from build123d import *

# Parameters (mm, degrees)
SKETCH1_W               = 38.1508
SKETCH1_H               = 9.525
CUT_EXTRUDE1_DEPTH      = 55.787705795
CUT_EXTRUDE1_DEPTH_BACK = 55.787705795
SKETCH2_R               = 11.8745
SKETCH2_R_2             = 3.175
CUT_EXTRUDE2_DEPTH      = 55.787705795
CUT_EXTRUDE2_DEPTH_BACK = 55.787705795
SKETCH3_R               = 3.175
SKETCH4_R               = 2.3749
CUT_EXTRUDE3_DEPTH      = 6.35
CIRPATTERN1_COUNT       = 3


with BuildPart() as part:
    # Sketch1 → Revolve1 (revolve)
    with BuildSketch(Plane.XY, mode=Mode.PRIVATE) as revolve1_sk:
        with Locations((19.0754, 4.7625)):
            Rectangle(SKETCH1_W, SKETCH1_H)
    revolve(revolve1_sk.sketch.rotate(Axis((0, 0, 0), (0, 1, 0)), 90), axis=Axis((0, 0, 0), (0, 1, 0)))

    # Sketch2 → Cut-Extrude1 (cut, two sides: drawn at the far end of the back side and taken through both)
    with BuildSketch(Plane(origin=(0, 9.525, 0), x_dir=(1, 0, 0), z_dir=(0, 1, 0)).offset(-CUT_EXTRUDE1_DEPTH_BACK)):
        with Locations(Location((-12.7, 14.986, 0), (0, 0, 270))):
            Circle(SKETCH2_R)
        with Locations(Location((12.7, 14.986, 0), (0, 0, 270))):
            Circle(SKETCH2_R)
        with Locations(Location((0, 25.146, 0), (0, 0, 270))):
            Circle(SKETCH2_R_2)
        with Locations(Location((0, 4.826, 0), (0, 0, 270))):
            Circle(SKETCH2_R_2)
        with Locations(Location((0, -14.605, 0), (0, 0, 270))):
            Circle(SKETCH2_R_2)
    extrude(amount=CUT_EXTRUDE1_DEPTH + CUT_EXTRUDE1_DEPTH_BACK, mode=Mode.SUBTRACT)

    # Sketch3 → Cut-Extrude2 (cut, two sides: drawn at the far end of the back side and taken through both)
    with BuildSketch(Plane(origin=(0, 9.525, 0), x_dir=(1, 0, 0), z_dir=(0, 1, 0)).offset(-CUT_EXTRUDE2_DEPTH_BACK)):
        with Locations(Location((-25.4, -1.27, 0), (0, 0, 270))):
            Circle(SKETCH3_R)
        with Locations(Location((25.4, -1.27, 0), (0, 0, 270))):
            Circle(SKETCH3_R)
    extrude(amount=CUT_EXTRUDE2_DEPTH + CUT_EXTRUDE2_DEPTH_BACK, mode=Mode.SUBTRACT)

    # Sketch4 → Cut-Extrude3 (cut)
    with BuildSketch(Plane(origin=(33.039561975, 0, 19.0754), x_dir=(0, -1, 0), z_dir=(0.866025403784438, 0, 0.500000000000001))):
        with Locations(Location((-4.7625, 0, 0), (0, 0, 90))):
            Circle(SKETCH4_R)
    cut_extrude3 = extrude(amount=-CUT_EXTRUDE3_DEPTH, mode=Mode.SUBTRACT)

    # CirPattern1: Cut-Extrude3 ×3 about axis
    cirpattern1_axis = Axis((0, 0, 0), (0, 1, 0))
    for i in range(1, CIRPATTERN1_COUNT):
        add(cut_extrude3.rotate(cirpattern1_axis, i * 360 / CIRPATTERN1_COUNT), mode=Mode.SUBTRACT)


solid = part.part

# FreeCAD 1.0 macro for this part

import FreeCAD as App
import Part
import Sketcher
Q = App.Units.Quantity

doc = App.newDocument("Part")
params = doc.addObject("Spreadsheet::Sheet", "Params")
for row, (alias, value) in enumerate([
    ("sketch1_width", "1.502 in"),
    ("sketch1_height", "0.375 in"),
    ("revolution_angle", "360 deg"),
    ("sketch2_diameter", "0.25 in"),
    ("sketch2_diameter2", "0.935 in"),
    ("sketch3_diameter", "0.25 in"),
    ("sketch4_diameter", "0.187 in"),
    ("pocket3_length", "0.25 in"),
], start=1):
    params.set(f"A{row}", alias)
    params.set(f"B{row}", "=" + value)
    params.setAlias(f"B{row}", alias)

body = doc.addObject("PartDesign::Body", "Body")

# Sketch on XY plane
sketch1 = doc.addObject("Sketcher::SketchObject", "Sketch")
body.addObject(sketch1)
sketch1.AttachmentSupport = (doc.XY_Plane, [""])
sketch1.MapMode = "FlatFace"
sketch1.addGeometry([
    Part.LineSegment(App.Vector(0, 9.525, 0), App.Vector(0, 0, 0)),
    Part.LineSegment(App.Vector(0, 0, 0), App.Vector(38.1508, 0, 0)),
    Part.LineSegment(App.Vector(38.1508, 0, 0), App.Vector(38.1508, 9.525, 0)),
    Part.LineSegment(App.Vector(38.1508, 9.525, 0), App.Vector(0, 9.525, 0)),
], False)
sketch1.addConstraint([
    Sketcher.Constraint("Coincident", 0, 2, 1, 1),
    Sketcher.Constraint("Coincident", 1, 2, 2, 1),
    Sketcher.Constraint("Coincident", 2, 2, 3, 1),
    Sketcher.Constraint("Coincident", 3, 2, 0, 1),
    Sketcher.Constraint("Vertical", 0),
    Sketcher.Constraint("Horizontal", 1),
    Sketcher.Constraint("Vertical", 2),
    Sketcher.Constraint("Horizontal", 3),
    Sketcher.Constraint("Coincident", 0, 2, -1, 1),
    Sketcher.Constraint("DistanceX", 1, 1, 1, 2, Q("1.502 in")),
    Sketcher.Constraint("DistanceY", 0, 2, 0, 1, Q("0.375 in")),
])
sketch1.setExpression("Constraints[9]", "Params.sketch1_width")
sketch1.setExpression("Constraints[10]", "Params.sketch1_height")
revolution = doc.addObject("PartDesign::Revolution", "Revolution")
body.addObject(revolution)
revolution.Profile = sketch1
revolution.ReferenceAxis = (sketch1, ["V_Axis"])
revolution.setExpression("Angle", "Params.revolution_angle")

# Sketch on XZ plane
sketch2 = doc.addObject("Sketcher::SketchObject", "Sketch001")
body.addObject(sketch2)
sketch2.AttachmentSupport = (doc.XZ_Plane, [""])
sketch2.MapMode = "FlatFace"
sketch2.AttachmentOffset = App.Placement(App.Vector(0, 0, -0.375 * 25.4), App.Rotation())
sketch2.addGeometry([
    Part.Circle(App.Vector(-12.7, -14.986, 0), App.Vector(0, 0, 1), 11.8745),  # 0
    Part.Circle(App.Vector(12.7, -14.986, 0), App.Vector(0, 0, 1), 11.8745),  # 1
    Part.Circle(App.Vector(0, -25.146, 0), App.Vector(0, 0, 1), 3.175),  # 2
    Part.Circle(App.Vector(0, -4.826, 0), App.Vector(0, 0, 1), 3.175),  # 3
    Part.Circle(App.Vector(0, 14.605, 0), App.Vector(0, 0, 1), 3.175),  # 4
], False)
sketch2.addConstraint([
    Sketcher.Constraint("Equal", 0, 1),
    Sketcher.Constraint("Equal", 2, 3),
    Sketcher.Constraint("Equal", 3, 4),
    Sketcher.Constraint("Symmetric", 0, 3, 1, 3, -2),
    Sketcher.Constraint("PointOnObject", 2, 3, -2),
    Sketcher.Constraint("PointOnObject", 3, 3, -2),
    Sketcher.Constraint("PointOnObject", 4, 3, -2),
    Sketcher.Constraint("Diameter", 2, Q("0.25 in")),
    Sketcher.Constraint("Diameter", 0, Q("0.935 in")),
    Sketcher.Constraint("DistanceX", 0, 3, 1, 3, Q("1 in")),
    Sketcher.Constraint("DistanceY", 2, 3, 0, 3, Q("0.4 in")),
    Sketcher.Constraint("DistanceY", 0, 3, 3, 3, Q("0.4 in")),
    Sketcher.Constraint("DistanceY", 0, 3, -1, 1, Q("0.59 in")),
    Sketcher.Constraint("DistanceY", -1, 1, 4, 3, Q("0.575 in")),
])
sketch2.setExpression("Constraints[7]", "Params.sketch2_diameter")
sketch2.setExpression("Constraints[8]", "Params.sketch2_diameter2")
pocket1 = doc.addObject("PartDesign::Pocket", "Pocket")
body.addObject(pocket1)
pocket1.Profile = sketch2
pocket1.Type = "ThroughAll"
pocket1.Midplane = True

# Sketch on XZ plane
sketch3 = doc.addObject("Sketcher::SketchObject", "Sketch002")
body.addObject(sketch3)
sketch3.AttachmentSupport = (doc.XZ_Plane, [""])
sketch3.MapMode = "FlatFace"
sketch3.AttachmentOffset = App.Placement(App.Vector(0, 0, -0.375 * 25.4), App.Rotation())
sketch3.addGeometry([
    Part.Circle(App.Vector(-25.4, 1.27, 0), App.Vector(0, 0, 1), 3.175),
    Part.Circle(App.Vector(25.4, 1.27, 0), App.Vector(0, 0, 1), 3.175),
], False)
sketch3.addConstraint([
    Sketcher.Constraint("Equal", 0, 1),
    Sketcher.Constraint("Symmetric", 0, 3, 1, 3, -2),
    Sketcher.Constraint("Diameter", 0, Q("0.25 in")),
    Sketcher.Constraint("DistanceX", 0, 3, -1, 1, Q("1 in")),
    Sketcher.Constraint("DistanceY", -1, 1, 0, 3, Q("0.05 in")),
])
sketch3.setExpression("Constraints[2]", "Params.sketch3_diameter")
pocket2 = doc.addObject("PartDesign::Pocket", "Pocket001")
body.addObject(pocket2)
pocket2.Profile = sketch3
pocket2.Type = "ThroughAll"
pocket2.Midplane = True

# Sketch on an angled plane
sketch4 = doc.addObject("Sketcher::SketchObject", "Sketch003")
body.addObject(sketch4)
sketch4.Placement = App.Placement(App.Vector(33.039562, 0, 19.0754), App.Rotation(App.Vector(0, -1, 0), App.Vector(0.5, 0, -0.866025404), App.Vector(0.866025404, 0, 0.5), "ZXY"))
sketch4.addGeometry(Part.Circle(App.Vector(-4.7625, 0, 0), App.Vector(0, 0, 1), 2.3749), False)
sketch4.addConstraint([
    Sketcher.Constraint("PointOnObject", 0, 3, -1),
    Sketcher.Constraint("Diameter", 0, Q("0.187 in")),
    Sketcher.Constraint("DistanceX", 0, 3, -1, 1, Q("0.1875 in")),
])
sketch4.setExpression("Constraints[1]", "Params.sketch4_diameter")
pocket3 = doc.addObject("PartDesign::Pocket", "Pocket002")
body.addObject(pocket3)
pocket3.Profile = sketch4
pocket3.setExpression("Length", "Params.pocket3_length")
doc.recompute()

polarpattern = doc.addObject("PartDesign::PolarPattern", "PolarPattern")
body.addObject(polarpattern)
polarpattern.Originals = [pocket3]
polarpattern.Axis = (doc.Y_Axis, [""])
polarpattern.Angle = 360
polarpattern.Occurrences = 3
body.Tip = polarpattern

doc.recompute()
